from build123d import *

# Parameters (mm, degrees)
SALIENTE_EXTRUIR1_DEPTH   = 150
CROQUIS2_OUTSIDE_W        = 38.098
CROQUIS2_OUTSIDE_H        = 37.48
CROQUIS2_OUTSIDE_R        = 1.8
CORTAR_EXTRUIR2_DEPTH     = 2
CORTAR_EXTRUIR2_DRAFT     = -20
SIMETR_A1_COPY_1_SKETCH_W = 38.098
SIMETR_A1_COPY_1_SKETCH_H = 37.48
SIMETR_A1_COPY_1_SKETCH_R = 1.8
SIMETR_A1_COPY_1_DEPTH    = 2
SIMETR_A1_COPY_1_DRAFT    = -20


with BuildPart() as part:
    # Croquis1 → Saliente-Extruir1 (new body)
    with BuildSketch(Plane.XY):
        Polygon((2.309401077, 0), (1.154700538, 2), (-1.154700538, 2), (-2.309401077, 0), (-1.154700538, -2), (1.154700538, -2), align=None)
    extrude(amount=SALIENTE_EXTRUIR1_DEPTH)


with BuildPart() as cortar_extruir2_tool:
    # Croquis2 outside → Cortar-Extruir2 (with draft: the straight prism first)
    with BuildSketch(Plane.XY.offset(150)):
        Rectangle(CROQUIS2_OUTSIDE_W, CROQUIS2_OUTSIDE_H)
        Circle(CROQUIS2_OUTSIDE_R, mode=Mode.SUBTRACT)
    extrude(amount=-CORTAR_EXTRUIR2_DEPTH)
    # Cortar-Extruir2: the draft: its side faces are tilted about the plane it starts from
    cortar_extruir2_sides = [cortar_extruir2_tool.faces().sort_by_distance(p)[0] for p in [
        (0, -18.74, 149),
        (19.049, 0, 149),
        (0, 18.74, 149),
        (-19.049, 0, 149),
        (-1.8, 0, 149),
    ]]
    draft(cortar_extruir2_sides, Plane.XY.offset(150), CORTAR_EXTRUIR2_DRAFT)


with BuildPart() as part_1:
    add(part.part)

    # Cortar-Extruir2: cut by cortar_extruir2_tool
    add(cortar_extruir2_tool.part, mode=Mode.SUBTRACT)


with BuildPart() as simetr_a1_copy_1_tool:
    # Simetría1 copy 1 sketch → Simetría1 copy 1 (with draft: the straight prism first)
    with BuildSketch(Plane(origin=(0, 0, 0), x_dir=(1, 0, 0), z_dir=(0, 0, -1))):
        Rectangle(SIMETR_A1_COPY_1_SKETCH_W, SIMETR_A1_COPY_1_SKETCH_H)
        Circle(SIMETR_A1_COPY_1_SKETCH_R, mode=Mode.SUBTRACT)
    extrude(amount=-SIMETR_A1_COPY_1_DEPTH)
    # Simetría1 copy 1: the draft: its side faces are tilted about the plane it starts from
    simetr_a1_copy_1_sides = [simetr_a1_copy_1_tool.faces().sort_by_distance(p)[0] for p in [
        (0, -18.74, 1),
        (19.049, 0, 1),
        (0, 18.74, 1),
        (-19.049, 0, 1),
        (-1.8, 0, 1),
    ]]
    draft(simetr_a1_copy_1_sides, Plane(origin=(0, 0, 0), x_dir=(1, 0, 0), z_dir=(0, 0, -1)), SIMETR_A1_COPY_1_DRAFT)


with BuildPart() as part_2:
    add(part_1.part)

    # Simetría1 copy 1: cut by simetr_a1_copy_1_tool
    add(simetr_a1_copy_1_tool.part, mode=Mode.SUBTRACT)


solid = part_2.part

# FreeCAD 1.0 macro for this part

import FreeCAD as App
import Part
import Sketcher
from FreeCAD import Vector
Q = App.Units.Quantity


def faces_at(feature, points):
    """Names of the faces that lie closest to the given points."""
    faces = feature.Shape.Faces
    near = lambda p: min(range(len(faces)), key=lambda i: faces[i].distToShape(Part.Vertex(*p))[0])
    return sorted({f"Face{near(p) + 1}" for p in points})

doc = App.newDocument("Part")
body = doc.addObject("PartDesign::Body", "Body")

# Sketch on XY plane
sketch1 = body.newObject("Sketcher::SketchObject", "Sketch")
sketch1.AttachmentSupport = (doc.getObject("XY_Plane"), [""])
sketch1.MapMode = "FlatFace"
sketch1.addGeometry([
    Part.LineSegment(Vector(2.3, 0, 0), Vector(1.2, 2, 0)),  # 0
    Part.LineSegment(Vector(1.2, 2, 0), Vector(-1.2, 2, 0)),  # 1
    Part.LineSegment(Vector(-1.2, 2, 0), Vector(-2.3, 0, 0)),  # 2
    Part.LineSegment(Vector(-2.3, 0, 0), Vector(-1.2, -2, 0)),  # 3
    Part.LineSegment(Vector(-1.2, -2, 0), Vector(1.2, -2, 0)),  # 4
    Part.LineSegment(Vector(1.2, -2, 0), Vector(2.3, 0, 0)),  # 5
], False)
sketch1.addConstraint([
    Sketcher.Constraint("Coincident", 0, 2, 1, 1),
    Sketcher.Constraint("Coincident", 1, 2, 2, 1),
    Sketcher.Constraint("Coincident", 2, 2, 3, 1),
    Sketcher.Constraint("Coincident", 3, 2, 4, 1),
    Sketcher.Constraint("Coincident", 4, 2, 5, 1),
    Sketcher.Constraint("Coincident", 5, 2, 0, 1),
    Sketcher.Constraint("Horizontal", 1),
    Sketcher.Constraint("Horizontal", 4),
    Sketcher.Constraint("Symmetric", 0, 2, 3, 2, -1, 1),
    Sketcher.Constraint("Symmetric", 2, 2, 5, 2, -1, 1),
    Sketcher.Constraint("PointOnObject", 2, 2, -1),
    Sketcher.Constraint("Parallel", 2, 5),
    Sketcher.Constraint("Vertical", 1, 2, 3, 2),
    Sketcher.Constraint("Angle", 0, Q("120 deg")),
    Sketcher.Constraint("DistanceY", -1, 1, 0, 2, 2.0),
    Sketcher.Constraint("DistanceX", 1, 2, 1, 1, 2.309401),
])
pad1 = body.newObject("PartDesign::Pad", "Pad")
pad1.Profile = sketch1
pad1.Length = 150
body2 = doc.addObject("PartDesign::Body", "Body001")

# Sketch on XY plane
sketch2 = body2.newObject("Sketcher::SketchObject", "Sketch001")
sketch2.AttachmentSupport = (doc.getObject("XY_Plane001"), [""])
sketch2.MapMode = "FlatFace"
sketch2.AttachmentOffset = App.Placement(Vector(0, 0, 150), App.Rotation())
sketch2.addGeometry([
    Part.LineSegment(Vector(-19, 18.7, 0), Vector(-19, -18.7, 0)),  # 0
    Part.LineSegment(Vector(-19, -18.7, 0), Vector(19, -18.7, 0)),  # 1
    Part.LineSegment(Vector(19, -18.7, 0), Vector(19, 18.7, 0)),  # 2
    Part.LineSegment(Vector(19, 18.7, 0), Vector(-19, 18.7, 0)),  # 3
    Part.Circle(Vector(0, 0, 0), Vector(0, 0, 1), 1.8),  # 4
], False)
sketch2.addConstraint([
    Sketcher.Constraint("Coincident", 0, 2, 1, 1),
    Sketcher.Constraint("Coincident", 1, 2, 2, 1),
    Sketcher.Constraint("Coincident", 2, 2, 3, 1),
    Sketcher.Constraint("Coincident", 3, 2, 0, 1),
    Sketcher.Constraint("Vertical", 0),
    Sketcher.Constraint("Horizontal", 1),
    Sketcher.Constraint("Vertical", 2),
    Sketcher.Constraint("Horizontal", 3),
    Sketcher.Constraint("Coincident", 4, 3, -1, 1),
    Sketcher.Constraint("Symmetric", 0, 2, 2, 2, -1, 1),
    Sketcher.Constraint("Diameter", 4, 3.6),
    Sketcher.Constraint("DistanceY", 0, 2, 0, 1, 37.48),
    Sketcher.Constraint("DistanceX", 1, 1, 1, 2, 38.098),
])
pad2 = body2.newObject("PartDesign::Pad", "Pad001")
pad2.Profile = sketch2
pad2.Length = 2
pad2.Reversed = True
doc.recompute()

datumplane = body2.newObject("PartDesign::Plane", "DatumPlane")
datumplane.AttachmentSupport = (doc.getObject("XY_Plane001"), [""])
datumplane.MapMode = "FlatFace"
datumplane.AttachmentOffset = App.Placement(Vector(0, 0, 150), App.Rotation())
draft = body2.newObject("PartDesign::Draft", "Draft")
draft.Base = (pad2, faces_at(pad2, [
    (0, -18.74, 149),
    (19.049, 0, 149),
    (0, 18.74, 149),
    (-19.049, 0, 149),
    (-1.8, 0, 149),
]))
draft.NeutralPlane = (datumplane, [""])
draft.Angle = 20
draft.Reversed = True
doc.recompute()

boolean = body.newObject("PartDesign::Boolean", "Boolean")
boolean.Type = "Cut"
boolean.addObjects([body2])
body3 = doc.addObject("PartDesign::Body", "Body002")

# Sketch on XY plane
sketch3 = body3.newObject("Sketcher::SketchObject", "Sketch002")
sketch3.AttachmentSupport = (doc.getObject("XY_Plane002"), [""])
sketch3.MapMode = "FlatFace"
sketch3.addGeometry([
    Part.LineSegment(Vector(-19, -18.7, 0), Vector(-19, 18.7, 0)),  # 0
    Part.LineSegment(Vector(-19, 18.7, 0), Vector(19, 18.7, 0)),  # 1
    Part.LineSegment(Vector(19, 18.7, 0), Vector(19, -18.7, 0)),  # 2
    Part.LineSegment(Vector(19, -18.7, 0), Vector(-19, -18.7, 0)),  # 3
    Part.Circle(Vector(0, 0, 0), Vector(0, 0, 1), 1.8),  # 4
], False)
sketch3.addConstraint([
    Sketcher.Constraint("Coincident", 0, 2, 1, 1),
    Sketcher.Constraint("Coincident", 1, 2, 2, 1),
    Sketcher.Constraint("Coincident", 2, 2, 3, 1),
    Sketcher.Constraint("Coincident", 3, 2, 0, 1),
    Sketcher.Constraint("Vertical", 0),
    Sketcher.Constraint("Horizontal", 1),
    Sketcher.Constraint("Vertical", 2),
    Sketcher.Constraint("Horizontal", 3),
    Sketcher.Constraint("Coincident", 4, 3, -1, 1),
    Sketcher.Constraint("Symmetric", 0, 2, 2, 2, -1, 1),
    Sketcher.Constraint("Diameter", 4, 3.6),
    Sketcher.Constraint("DistanceY", 0, 1, 0, 2, 37.48),
    Sketcher.Constraint("DistanceX", 1, 1, 1, 2, 38.098),
])
pad3 = body3.newObject("PartDesign::Pad", "Pad002")
pad3.Profile = sketch3
pad3.Length = 2
doc.recompute()

draft2 = body3.newObject("PartDesign::Draft", "Draft001")
draft2.Base = (pad3, faces_at(pad3, [
    (0, -18.74, 1),
    (19.049, 0, 1),
    (0, 18.74, 1),
    (-19.049, 0, 1),
    (-1.8, 0, 1),
]))
draft2.NeutralPlane = (doc.getObject("XY_Plane002"), [""])
draft2.Angle = 20
draft2.Reversed = False
doc.recompute()

boolean2 = body.newObject("PartDesign::Boolean", "Boolean001")
boolean2.Type = "Cut"
boolean2.addObjects([body3])

doc.recompute()
